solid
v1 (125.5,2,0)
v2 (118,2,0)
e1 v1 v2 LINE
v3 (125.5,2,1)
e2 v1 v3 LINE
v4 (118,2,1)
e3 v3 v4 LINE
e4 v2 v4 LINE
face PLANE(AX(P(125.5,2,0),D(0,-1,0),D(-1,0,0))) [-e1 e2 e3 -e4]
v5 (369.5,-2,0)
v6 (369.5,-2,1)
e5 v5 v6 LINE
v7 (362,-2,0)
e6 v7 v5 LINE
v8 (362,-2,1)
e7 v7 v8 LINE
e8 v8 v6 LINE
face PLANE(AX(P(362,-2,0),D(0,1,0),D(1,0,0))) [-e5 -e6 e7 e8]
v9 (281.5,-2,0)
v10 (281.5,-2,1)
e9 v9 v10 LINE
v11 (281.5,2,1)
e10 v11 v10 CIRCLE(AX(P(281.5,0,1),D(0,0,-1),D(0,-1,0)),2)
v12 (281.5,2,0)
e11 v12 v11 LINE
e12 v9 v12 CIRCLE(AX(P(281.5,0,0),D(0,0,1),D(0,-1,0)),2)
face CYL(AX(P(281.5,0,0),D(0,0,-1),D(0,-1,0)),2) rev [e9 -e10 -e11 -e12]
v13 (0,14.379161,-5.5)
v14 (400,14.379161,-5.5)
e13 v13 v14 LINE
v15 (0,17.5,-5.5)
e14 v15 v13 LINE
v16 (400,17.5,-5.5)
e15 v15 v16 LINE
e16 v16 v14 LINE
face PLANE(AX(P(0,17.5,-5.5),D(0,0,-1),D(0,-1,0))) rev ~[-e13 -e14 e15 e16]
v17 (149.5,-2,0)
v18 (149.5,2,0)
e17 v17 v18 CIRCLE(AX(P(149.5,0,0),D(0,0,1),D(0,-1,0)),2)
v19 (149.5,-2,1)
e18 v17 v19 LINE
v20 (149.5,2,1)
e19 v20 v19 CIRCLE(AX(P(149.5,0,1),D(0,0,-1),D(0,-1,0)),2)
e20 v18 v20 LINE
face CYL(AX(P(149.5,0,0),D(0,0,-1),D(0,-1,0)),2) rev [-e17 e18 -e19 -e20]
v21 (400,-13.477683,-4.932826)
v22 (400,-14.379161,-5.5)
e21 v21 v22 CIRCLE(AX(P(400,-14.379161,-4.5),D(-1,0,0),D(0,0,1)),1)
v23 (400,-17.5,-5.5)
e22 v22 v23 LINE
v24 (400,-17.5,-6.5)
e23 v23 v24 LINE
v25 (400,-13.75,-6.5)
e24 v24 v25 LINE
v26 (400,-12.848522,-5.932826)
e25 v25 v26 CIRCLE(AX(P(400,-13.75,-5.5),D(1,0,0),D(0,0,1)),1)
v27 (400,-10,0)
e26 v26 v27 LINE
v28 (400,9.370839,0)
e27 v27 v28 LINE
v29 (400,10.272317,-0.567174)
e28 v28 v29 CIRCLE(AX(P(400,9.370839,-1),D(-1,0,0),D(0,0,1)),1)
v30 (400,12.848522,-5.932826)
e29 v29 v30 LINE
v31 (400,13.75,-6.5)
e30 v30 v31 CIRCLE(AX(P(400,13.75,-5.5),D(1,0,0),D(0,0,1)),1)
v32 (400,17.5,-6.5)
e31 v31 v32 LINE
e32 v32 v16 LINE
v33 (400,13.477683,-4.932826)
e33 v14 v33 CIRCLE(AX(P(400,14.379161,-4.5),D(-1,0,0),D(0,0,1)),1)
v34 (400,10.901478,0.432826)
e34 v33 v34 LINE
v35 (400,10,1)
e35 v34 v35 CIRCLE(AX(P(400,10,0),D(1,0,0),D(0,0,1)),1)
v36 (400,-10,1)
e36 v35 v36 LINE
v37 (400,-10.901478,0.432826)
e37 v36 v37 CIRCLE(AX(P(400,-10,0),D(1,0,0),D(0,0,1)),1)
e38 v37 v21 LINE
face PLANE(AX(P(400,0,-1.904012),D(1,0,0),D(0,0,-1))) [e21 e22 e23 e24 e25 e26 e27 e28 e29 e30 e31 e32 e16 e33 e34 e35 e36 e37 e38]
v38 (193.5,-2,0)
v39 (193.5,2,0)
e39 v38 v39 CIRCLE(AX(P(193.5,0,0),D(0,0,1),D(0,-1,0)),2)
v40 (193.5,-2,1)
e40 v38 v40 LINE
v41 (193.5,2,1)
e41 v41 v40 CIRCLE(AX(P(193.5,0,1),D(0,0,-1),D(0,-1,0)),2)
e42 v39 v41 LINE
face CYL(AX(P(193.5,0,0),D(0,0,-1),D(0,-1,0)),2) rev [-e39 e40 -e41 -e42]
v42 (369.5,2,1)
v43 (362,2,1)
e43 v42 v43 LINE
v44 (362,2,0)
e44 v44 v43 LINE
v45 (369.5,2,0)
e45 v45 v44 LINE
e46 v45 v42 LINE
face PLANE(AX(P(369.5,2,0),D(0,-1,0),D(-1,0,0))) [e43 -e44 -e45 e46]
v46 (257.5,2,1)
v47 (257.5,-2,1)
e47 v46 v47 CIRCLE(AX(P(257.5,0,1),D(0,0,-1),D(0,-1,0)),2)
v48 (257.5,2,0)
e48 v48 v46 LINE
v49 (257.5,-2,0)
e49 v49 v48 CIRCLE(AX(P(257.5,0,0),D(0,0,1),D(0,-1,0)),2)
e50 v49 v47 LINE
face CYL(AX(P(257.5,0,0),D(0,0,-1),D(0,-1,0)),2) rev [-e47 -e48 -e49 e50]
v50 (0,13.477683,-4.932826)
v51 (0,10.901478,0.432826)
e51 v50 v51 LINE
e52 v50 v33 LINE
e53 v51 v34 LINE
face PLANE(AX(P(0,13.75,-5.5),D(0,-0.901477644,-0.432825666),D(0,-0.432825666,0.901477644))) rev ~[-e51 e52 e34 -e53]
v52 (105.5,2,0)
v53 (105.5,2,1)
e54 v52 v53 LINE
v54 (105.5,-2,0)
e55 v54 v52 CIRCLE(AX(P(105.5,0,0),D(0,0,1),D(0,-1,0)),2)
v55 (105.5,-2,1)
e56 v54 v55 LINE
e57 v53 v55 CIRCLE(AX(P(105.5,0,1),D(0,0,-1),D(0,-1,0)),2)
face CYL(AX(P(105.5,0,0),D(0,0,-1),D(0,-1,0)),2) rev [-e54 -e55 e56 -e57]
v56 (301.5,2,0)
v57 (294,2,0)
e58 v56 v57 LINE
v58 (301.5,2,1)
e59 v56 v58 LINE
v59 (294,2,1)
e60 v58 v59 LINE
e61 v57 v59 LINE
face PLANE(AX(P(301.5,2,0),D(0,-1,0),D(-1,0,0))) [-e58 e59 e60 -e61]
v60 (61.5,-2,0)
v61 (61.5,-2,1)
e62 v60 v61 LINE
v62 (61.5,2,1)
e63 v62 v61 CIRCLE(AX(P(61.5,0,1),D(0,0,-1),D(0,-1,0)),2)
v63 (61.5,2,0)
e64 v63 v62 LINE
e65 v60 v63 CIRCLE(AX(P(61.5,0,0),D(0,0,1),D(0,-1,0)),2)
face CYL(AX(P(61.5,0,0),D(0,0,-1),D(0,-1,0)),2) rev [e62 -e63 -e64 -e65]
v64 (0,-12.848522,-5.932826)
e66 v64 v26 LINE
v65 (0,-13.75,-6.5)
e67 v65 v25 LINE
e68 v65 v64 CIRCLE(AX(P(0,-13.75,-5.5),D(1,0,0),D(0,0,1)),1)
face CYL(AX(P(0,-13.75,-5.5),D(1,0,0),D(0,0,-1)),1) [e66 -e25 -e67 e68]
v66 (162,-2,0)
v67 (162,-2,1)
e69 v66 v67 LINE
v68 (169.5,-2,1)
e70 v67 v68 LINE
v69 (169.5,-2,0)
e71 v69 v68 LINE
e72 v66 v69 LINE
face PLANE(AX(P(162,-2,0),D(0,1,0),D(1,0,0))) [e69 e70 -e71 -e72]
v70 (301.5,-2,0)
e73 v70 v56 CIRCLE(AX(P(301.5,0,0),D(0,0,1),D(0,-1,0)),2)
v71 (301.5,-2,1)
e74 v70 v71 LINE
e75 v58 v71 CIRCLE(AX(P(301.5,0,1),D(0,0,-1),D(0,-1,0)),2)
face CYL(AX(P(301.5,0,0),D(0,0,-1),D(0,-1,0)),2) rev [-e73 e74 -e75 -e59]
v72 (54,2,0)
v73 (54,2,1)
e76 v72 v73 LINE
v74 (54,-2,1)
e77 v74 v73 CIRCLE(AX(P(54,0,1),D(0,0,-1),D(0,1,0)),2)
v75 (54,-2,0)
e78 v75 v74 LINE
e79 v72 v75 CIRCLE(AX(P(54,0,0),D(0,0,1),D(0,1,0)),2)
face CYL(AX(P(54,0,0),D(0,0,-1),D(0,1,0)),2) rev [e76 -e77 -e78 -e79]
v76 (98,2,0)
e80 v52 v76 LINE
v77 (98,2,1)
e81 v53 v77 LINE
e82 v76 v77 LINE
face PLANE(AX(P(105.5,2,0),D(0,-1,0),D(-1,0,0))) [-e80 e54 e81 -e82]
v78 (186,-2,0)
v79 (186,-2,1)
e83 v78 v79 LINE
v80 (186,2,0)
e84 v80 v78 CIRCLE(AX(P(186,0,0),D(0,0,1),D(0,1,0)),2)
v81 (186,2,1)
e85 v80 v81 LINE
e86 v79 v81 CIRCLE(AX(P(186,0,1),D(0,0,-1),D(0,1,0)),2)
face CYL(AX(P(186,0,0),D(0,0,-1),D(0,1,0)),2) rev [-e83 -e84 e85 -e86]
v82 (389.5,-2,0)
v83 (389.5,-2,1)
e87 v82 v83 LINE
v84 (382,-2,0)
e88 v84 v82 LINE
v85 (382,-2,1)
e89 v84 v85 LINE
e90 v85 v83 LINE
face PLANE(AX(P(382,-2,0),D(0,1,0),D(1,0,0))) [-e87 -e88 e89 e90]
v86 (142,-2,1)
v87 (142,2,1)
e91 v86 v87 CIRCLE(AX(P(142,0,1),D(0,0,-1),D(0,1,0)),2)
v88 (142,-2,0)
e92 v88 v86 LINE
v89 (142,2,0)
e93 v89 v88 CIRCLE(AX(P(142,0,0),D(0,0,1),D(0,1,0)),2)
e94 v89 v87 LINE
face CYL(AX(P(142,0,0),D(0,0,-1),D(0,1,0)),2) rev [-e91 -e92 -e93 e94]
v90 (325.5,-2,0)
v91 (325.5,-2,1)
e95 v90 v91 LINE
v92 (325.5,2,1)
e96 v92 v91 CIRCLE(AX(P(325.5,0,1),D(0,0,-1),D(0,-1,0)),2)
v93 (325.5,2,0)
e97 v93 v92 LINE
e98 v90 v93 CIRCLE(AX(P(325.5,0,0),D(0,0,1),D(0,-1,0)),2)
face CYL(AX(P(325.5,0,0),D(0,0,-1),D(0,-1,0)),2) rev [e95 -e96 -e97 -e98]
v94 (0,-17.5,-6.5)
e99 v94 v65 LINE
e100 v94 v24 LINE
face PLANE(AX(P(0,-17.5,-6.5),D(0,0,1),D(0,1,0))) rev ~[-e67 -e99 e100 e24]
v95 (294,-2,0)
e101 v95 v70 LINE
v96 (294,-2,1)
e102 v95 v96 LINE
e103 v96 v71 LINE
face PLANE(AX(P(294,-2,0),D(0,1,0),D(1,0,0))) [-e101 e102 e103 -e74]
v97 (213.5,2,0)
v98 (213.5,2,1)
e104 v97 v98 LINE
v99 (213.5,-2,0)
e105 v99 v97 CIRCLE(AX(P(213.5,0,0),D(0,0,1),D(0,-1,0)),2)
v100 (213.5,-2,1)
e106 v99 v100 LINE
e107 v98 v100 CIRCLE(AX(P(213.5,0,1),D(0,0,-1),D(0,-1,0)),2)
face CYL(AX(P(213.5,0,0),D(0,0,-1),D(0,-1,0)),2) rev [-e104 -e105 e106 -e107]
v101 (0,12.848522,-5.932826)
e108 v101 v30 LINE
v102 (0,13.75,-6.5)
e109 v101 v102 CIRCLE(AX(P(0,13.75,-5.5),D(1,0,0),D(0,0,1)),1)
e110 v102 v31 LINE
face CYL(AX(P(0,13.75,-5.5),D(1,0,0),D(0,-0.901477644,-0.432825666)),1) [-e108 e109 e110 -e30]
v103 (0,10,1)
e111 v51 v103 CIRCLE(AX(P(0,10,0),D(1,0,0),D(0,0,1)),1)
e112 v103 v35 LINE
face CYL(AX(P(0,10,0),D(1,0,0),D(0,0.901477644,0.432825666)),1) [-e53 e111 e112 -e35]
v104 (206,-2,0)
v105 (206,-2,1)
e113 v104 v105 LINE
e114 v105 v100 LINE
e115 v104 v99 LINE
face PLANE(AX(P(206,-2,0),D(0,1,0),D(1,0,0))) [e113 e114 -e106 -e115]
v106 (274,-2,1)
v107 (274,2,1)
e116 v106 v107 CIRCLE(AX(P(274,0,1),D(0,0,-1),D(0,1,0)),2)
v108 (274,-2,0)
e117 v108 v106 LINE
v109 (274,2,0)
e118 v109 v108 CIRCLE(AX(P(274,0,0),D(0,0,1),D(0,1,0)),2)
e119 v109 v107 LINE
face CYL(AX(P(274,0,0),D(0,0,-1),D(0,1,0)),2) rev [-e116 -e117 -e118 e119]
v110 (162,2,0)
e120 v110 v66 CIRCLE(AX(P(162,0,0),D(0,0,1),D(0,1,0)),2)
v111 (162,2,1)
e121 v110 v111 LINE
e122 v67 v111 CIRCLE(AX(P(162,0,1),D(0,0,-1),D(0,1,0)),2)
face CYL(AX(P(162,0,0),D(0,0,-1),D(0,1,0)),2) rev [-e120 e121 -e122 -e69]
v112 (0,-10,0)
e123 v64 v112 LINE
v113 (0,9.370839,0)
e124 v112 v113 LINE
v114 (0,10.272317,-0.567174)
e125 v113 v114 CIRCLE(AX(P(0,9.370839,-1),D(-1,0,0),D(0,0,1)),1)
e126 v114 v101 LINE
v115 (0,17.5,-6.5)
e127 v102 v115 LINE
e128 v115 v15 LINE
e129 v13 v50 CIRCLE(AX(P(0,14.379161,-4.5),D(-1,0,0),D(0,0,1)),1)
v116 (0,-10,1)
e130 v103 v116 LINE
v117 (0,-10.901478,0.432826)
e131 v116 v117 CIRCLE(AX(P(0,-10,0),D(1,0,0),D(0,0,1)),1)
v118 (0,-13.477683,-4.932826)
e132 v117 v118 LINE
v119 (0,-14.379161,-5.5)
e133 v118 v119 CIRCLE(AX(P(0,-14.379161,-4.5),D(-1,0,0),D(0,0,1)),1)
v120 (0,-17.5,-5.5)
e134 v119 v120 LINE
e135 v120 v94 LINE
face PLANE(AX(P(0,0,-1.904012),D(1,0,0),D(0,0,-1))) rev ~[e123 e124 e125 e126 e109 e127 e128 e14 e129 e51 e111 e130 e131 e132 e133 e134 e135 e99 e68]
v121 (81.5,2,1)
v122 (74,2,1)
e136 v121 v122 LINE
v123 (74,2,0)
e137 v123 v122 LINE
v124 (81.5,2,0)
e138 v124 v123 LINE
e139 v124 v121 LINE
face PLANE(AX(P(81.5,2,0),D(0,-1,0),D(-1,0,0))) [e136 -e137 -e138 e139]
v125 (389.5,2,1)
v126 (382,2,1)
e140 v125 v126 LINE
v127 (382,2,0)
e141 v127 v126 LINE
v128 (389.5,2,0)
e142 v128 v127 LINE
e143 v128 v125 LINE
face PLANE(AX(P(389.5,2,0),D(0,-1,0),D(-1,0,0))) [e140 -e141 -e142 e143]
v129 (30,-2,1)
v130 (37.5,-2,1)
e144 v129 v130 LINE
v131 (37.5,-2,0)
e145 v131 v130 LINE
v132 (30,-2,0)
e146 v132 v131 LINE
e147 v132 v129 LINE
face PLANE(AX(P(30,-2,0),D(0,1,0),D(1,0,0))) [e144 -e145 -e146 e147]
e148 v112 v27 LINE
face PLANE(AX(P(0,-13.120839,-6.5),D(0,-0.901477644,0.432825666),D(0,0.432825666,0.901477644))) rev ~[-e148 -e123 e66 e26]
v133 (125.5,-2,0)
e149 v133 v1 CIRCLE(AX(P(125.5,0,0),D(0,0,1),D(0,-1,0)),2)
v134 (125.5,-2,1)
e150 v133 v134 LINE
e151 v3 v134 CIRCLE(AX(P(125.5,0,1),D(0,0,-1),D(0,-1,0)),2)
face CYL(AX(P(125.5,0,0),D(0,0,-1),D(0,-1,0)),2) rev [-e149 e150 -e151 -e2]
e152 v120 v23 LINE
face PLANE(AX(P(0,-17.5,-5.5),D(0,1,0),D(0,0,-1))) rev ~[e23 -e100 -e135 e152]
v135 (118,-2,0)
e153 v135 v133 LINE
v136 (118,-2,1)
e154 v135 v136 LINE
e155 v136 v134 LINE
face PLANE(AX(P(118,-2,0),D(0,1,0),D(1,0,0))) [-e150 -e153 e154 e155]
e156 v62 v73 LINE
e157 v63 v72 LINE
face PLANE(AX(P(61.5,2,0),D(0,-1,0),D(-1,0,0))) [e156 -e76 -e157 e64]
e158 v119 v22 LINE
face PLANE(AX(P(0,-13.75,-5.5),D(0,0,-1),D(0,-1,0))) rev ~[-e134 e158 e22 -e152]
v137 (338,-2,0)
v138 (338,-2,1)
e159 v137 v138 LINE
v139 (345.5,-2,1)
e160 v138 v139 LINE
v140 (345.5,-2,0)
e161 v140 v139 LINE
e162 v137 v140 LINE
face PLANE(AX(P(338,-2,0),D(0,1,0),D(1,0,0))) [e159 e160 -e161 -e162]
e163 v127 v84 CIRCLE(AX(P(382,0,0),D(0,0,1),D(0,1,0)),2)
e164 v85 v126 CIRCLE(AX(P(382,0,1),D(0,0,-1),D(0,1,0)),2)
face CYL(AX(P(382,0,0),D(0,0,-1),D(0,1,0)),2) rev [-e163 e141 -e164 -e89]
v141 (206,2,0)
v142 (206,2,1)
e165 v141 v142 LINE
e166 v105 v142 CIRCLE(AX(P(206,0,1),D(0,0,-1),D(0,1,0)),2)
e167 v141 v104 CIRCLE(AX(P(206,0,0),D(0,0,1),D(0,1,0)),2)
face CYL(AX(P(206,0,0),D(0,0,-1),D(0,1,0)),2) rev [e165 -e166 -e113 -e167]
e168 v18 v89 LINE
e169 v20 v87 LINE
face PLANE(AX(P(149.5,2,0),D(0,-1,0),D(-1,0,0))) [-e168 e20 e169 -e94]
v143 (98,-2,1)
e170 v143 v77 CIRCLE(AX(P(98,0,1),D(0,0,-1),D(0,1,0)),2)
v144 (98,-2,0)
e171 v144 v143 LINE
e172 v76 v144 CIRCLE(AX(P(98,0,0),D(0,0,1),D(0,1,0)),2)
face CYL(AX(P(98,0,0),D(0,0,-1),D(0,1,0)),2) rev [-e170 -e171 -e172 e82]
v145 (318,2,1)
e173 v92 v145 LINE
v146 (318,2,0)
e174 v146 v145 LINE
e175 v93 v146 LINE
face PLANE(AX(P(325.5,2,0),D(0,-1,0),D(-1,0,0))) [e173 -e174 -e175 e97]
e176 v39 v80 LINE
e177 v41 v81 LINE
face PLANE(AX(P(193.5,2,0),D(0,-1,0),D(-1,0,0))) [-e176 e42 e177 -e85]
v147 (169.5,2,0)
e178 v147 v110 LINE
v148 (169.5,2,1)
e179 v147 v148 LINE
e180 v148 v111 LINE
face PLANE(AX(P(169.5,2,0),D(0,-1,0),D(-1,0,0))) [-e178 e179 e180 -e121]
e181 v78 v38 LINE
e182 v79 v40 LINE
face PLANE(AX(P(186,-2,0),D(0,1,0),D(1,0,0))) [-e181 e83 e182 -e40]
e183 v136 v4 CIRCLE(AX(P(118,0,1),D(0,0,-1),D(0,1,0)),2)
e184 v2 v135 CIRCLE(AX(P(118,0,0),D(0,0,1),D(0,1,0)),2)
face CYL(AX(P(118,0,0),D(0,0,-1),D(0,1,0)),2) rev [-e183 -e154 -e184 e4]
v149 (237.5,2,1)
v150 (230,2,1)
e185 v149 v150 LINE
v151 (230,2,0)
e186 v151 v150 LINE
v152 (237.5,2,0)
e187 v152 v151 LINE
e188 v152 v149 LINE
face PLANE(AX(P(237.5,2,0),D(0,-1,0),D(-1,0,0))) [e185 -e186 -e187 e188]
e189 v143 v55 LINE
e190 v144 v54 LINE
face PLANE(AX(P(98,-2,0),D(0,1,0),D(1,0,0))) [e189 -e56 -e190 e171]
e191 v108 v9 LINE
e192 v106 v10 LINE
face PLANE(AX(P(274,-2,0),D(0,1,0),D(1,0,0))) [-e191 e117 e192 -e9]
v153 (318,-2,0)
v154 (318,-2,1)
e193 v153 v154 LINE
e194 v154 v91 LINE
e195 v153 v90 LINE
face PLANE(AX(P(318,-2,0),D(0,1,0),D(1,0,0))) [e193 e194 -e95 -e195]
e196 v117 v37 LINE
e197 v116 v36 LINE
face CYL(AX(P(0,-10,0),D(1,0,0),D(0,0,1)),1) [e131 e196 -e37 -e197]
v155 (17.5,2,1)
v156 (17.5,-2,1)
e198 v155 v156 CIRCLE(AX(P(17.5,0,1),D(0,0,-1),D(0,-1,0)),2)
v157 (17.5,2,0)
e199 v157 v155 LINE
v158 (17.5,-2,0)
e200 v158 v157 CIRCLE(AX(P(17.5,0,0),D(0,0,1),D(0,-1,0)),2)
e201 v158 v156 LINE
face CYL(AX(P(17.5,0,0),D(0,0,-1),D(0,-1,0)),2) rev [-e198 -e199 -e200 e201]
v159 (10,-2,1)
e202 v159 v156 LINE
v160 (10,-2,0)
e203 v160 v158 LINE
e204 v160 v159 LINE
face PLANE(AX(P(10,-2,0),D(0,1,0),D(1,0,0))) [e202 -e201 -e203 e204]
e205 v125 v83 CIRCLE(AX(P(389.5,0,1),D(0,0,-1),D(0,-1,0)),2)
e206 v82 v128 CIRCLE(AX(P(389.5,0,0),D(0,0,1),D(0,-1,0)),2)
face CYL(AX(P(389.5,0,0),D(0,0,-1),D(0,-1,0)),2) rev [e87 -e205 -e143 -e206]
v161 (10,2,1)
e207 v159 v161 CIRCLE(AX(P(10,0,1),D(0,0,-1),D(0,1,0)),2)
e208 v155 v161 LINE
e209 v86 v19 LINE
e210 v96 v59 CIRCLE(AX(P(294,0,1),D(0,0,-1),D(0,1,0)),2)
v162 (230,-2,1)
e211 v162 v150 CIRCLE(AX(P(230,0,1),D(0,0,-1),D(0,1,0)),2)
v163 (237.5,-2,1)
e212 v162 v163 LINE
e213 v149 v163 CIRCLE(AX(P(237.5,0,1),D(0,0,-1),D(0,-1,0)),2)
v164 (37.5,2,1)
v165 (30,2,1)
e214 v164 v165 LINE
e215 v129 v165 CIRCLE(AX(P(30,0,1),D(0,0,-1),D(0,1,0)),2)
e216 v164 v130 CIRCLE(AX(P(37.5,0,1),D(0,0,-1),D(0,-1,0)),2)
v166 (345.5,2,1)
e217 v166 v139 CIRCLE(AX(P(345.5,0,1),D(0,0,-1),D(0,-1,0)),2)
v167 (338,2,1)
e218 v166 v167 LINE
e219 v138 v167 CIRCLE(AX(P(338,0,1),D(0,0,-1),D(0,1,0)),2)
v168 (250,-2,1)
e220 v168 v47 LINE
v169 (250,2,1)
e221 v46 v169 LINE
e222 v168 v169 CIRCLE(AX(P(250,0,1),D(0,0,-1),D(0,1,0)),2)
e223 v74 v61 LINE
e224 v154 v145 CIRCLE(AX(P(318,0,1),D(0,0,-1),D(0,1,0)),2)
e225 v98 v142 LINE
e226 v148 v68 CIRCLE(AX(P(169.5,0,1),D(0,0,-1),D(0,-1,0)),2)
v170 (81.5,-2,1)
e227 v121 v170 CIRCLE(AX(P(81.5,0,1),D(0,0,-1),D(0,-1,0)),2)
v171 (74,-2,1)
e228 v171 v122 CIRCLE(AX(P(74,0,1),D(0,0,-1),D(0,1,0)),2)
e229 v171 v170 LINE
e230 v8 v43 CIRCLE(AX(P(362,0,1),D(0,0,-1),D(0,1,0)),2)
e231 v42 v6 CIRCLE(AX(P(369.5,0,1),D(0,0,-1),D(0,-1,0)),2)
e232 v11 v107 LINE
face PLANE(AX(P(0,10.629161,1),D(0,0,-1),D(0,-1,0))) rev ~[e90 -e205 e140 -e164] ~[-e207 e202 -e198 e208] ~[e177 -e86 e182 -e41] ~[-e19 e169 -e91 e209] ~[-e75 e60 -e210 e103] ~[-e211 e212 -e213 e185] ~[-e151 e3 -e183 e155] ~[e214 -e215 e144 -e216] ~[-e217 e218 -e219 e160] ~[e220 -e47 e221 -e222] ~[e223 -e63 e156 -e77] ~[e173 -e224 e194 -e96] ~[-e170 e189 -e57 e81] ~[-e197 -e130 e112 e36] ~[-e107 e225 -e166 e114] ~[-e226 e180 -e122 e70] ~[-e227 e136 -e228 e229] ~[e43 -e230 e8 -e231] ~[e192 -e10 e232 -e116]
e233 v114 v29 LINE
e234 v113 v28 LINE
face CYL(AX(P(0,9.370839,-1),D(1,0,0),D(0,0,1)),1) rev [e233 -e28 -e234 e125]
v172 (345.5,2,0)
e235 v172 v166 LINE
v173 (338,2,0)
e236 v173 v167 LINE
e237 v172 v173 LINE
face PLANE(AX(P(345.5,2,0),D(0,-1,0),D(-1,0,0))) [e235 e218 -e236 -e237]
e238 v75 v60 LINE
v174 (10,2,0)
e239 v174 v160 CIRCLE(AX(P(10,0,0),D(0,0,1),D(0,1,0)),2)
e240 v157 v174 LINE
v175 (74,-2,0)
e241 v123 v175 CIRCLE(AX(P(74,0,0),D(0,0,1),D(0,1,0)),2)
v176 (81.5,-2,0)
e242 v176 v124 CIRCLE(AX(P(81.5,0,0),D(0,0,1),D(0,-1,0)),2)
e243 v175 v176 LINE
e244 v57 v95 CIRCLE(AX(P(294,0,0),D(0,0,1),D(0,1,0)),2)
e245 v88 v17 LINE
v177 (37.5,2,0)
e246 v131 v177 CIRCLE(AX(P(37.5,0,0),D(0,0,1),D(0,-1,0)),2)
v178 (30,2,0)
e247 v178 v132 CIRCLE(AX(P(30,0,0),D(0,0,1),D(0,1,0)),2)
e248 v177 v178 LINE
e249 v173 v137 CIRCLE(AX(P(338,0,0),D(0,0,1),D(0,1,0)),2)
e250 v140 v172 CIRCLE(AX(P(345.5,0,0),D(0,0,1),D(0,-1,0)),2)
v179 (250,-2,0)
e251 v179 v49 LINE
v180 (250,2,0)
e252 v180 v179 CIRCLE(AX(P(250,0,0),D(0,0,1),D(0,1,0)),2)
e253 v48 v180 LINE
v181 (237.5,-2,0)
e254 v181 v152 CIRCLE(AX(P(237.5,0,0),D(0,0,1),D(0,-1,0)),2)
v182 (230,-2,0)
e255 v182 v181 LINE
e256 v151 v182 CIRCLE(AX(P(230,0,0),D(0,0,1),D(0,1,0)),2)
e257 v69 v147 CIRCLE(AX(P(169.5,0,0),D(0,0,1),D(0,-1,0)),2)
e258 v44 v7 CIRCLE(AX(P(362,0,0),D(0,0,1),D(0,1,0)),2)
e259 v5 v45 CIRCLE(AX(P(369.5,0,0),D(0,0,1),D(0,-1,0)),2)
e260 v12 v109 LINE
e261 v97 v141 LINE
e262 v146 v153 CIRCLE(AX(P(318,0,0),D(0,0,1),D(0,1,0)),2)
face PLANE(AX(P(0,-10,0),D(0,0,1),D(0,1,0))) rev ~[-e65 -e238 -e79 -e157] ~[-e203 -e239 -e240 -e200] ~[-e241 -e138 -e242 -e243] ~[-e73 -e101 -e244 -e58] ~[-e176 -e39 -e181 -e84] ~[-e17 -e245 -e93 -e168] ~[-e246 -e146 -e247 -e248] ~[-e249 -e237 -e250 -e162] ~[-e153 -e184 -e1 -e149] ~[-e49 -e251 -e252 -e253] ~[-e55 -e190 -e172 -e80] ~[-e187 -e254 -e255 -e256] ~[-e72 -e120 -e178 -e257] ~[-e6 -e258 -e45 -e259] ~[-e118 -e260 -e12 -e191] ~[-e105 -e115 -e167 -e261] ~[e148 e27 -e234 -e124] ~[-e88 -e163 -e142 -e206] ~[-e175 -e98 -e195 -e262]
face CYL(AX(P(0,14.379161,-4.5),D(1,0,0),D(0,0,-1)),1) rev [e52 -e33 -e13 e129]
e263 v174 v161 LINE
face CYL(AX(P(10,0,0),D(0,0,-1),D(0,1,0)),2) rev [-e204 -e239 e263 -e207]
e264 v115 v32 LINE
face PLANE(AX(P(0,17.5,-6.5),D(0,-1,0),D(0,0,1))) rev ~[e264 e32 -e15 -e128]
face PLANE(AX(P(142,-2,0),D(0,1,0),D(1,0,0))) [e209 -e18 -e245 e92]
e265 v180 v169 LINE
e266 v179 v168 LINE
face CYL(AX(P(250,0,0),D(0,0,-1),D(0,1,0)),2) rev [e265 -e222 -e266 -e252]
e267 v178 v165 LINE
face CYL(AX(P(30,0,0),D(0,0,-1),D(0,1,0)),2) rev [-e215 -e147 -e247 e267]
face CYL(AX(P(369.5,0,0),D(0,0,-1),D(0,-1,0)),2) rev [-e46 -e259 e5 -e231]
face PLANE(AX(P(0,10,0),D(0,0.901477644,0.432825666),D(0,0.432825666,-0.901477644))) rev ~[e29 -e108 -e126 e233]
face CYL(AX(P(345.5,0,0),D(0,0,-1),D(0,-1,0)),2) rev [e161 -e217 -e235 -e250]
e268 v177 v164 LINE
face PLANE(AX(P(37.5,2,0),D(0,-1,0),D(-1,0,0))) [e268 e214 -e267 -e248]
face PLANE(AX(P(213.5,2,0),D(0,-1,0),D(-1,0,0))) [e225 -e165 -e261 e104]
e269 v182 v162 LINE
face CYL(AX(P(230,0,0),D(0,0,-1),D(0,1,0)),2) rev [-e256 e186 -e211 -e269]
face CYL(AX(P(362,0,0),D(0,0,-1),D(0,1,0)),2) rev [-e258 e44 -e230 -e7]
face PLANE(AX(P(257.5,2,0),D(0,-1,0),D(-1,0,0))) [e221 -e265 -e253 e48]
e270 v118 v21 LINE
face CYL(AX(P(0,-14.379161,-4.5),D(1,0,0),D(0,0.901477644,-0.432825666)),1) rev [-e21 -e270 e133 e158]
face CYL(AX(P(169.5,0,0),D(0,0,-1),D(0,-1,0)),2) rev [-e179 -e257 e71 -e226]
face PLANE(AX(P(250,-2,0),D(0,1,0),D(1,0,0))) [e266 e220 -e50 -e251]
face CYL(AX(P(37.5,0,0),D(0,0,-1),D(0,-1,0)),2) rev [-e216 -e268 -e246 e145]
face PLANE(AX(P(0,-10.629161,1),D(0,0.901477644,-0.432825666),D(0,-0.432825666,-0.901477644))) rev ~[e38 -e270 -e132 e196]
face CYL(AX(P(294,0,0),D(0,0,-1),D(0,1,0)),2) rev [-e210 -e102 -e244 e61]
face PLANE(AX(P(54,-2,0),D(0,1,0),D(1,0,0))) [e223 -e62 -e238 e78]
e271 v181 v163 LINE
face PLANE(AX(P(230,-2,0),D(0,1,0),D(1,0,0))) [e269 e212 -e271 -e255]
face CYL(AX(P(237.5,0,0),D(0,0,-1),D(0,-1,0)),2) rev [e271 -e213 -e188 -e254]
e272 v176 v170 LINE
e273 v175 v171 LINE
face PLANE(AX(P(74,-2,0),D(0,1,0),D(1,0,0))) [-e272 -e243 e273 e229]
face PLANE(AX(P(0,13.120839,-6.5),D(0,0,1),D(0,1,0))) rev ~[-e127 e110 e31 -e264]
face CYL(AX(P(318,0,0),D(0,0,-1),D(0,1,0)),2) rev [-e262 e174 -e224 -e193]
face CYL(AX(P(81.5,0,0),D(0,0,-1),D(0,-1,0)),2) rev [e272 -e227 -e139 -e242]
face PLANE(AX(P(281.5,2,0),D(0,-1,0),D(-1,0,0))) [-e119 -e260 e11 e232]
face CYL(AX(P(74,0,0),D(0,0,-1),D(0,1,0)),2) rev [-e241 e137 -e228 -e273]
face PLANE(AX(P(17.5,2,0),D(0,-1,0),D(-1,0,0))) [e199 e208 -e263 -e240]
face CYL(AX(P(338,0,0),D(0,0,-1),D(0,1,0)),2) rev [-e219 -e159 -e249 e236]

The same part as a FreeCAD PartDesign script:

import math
import FreeCAD as App
import Part
import Sketcher
Q = App.Units.Quantity


def edges_at(feature, points):
    """Names of the edges that pass closest to the given points."""
    edges = feature.Shape.Edges
    near = lambda p: min(range(len(edges)), key=lambda i: edges[i].distToShape(Part.Vertex(*p))[0])
    return sorted({f"Edge{near(p) + 1}" for p in points})


def add_polygon(sketch, points):
    """Adds a closed chain of lines whose ends are joined by coincident constraints."""
    first, n = sketch.GeometryCount, len(points)
    for a, b in zip(points, points[1:] + points[:1]):
        sketch.addGeometry(Part.LineSegment(App.Vector(*a, 0), App.Vector(*b, 0)), False)
    for i in range(n):
        sketch.addConstraint(Sketcher.Constraint("Coincident", first + i, 2, first + (i + 1) % n, 1))

doc = App.newDocument("Part")
body = doc.addObject("PartDesign::Body", "Body")

# Sketch on YZ plane
sketch1 = body.newObject("Sketcher::SketchObject", "Sketch")
sketch1.AttachmentSupport = (doc.getObject("YZ_Plane"), [""])
sketch1.MapMode = "FlatFace"
add_polygon(sketch1, [(-10, 0), (10, 0), (13.1, -6.5), (17.5, -6.5), (17.5, -5.5), (13.8, -5.5), (10.6, 1), (-10.6, 1), (-13.8, -5.5), (-17.5, -5.5), (-17.5, -6.5), (-13.1, -6.5)])  # lines 0-11
sketch1.addConstraint(Sketcher.Constraint("Horizontal", 0))
sketch1.addConstraint(Sketcher.Constraint("Horizontal", 2))
sketch1.addConstraint(Sketcher.Constraint("Vertical", 3))
sketch1.addConstraint(Sketcher.Constraint("Horizontal", 4))
sketch1.addConstraint(Sketcher.Constraint("Horizontal", 6))
sketch1.addConstraint(Sketcher.Constraint("Horizontal", 8))
sketch1.addConstraint(Sketcher.Constraint("Vertical", 9))
sketch1.addConstraint(Sketcher.Constraint("Horizontal", 10))
sketch1.addConstraint(Sketcher.Constraint("Symmetric", 0, 2, 11, 2, -1, 1))
sketch1.addConstraint(Sketcher.Constraint("Symmetric", 4, 2, 7, 2, -2))
sketch1.addConstraint(Sketcher.Constraint("Symmetric", 2, 2, 9, 2, -2))
sketch1.addConstraint(Sketcher.Constraint("Parallel", 1, 5))
sketch1.addConstraint(Sketcher.Constraint("Parallel", 7, 11))
sketch1.addConstraint(Sketcher.Constraint("Equal", 2, 10))
sketch1.addConstraint(Sketcher.Constraint("Equal", 1, 5))
sketch1.addConstraint(Sketcher.Constraint("DistanceX", 0, 1, 0, 2, Q("20 mm")))
sketch1.addConstraint(Sketcher.Constraint("DistanceY", 3, 1, 3, 2, Q("1 mm")))
sketch1.addConstraint(Sketcher.Constraint("DistanceX", 4, 2, 4, 1, Q("3.75 mm")))
sketch1.addConstraint(Sketcher.Constraint("DistanceY", 1, 2, -1, 1, Q("6.5 mm")))
sketch1.addConstraint(Sketcher.Constraint("DistanceX", -1, 1, 2, 2, Q("17.5 mm")))
sketch1.addConstraint(Sketcher.Constraint("DistanceX", 2, 1, 2, 2, Q("4.379161 mm")))
pad1 = body.newObject("PartDesign::Pad", "Pad")
pad1.Profile = sketch1
pad1.Length = 400
doc.recompute()

fillet = body.newObject("PartDesign::Fillet", "Fillet")
fillet.Base = (pad1, edges_at(pad1, [
    (200, 10, 0),
    (200, -13.121, -6.5),
    (200, -13.75, -5.5),
    (200, -10.629, 1),
    (200, 10.629, 1),
    (200, 13.75, -5.5),
    (200, 13.121, -6.5),
]))
fillet.Radius = 1

# Sketch on XY plane
sketch2 = body.newObject("Sketcher::SketchObject", "Sketch001")
sketch2.AttachmentSupport = (doc.getObject("XY_Plane"), [""])
sketch2.MapMode = "FlatFace"
sketch2.addGeometry(Part.LineSegment(App.Vector(17.5, -2, 0), App.Vector(10, -2, 0)), False)
sketch2.addGeometry(Part.ArcOfCircle(Part.Circle(App.Vector(10, 0, 0), App.Vector(0, 0, 1), 2), math.radians(90), math.radians(270)), False)
sketch2.addGeometry(Part.LineSegment(App.Vector(10, 2, 0), App.Vector(17.5, 2, 0)), False)
sketch2.addGeometry(Part.ArcOfCircle(Part.Circle(App.Vector(17.5, 0, 0), App.Vector(0, 0, 1), 2), math.radians(-90), math.radians(90)), False)
sketch2.addGeometry(Part.LineSegment(App.Vector(37.5, -2, 0), App.Vector(30, -2, 0)), False)
sketch2.addGeometry(Part.ArcOfCircle(Part.Circle(App.Vector(30, 0, 0), App.Vector(0, 0, 1), 2), math.radians(90), math.radians(270)), False)
sketch2.addGeometry(Part.LineSegment(App.Vector(30, 2, 0), App.Vector(37.5, 2, 0)), False)
sketch2.addGeometry(Part.ArcOfCircle(Part.Circle(App.Vector(37.5, 0, 0), App.Vector(0, 0, 1), 2), math.radians(-90), math.radians(90)), False)
sketch2.addGeometry(Part.LineSegment(App.Vector(61.5, -2, 0), App.Vector(54, -2, 0)), False)
sketch2.addGeometry(Part.ArcOfCircle(Part.Circle(App.Vector(54, 0, 0), App.Vector(0, 0, 1), 2), math.radians(90), math.radians(270)), False)
sketch2.addGeometry(Part.LineSegment(App.Vector(54, 2, 0), App.Vector(61.5, 2, 0)), False)
sketch2.addGeometry(Part.ArcOfCircle(Part.Circle(App.Vector(61.5, 0, 0), App.Vector(0, 0, 1), 2), math.radians(-90), math.radians(90)), False)
sketch2.addGeometry(Part.LineSegment(App.Vector(81.5, -2, 0), App.Vector(74, -2, 0)), False)
sketch2.addGeometry(Part.ArcOfCircle(Part.Circle(App.Vector(74, 0, 0), App.Vector(0, 0, 1), 2), math.radians(90), math.radians(270)), False)
sketch2.addGeometry(Part.LineSegment(App.Vector(74, 2, 0), App.Vector(81.5, 2, 0)), False)
sketch2.addGeometry(Part.ArcOfCircle(Part.Circle(App.Vector(81.5, 0, 0), App.Vector(0, 0, 1), 2), math.radians(-90), math.radians(90)), False)
sketch2.addGeometry(Part.LineSegment(App.Vector(105.5, -2, 0), App.Vector(98, -2, 0)), False)
sketch2.addGeometry(Part.ArcOfCircle(Part.Circle(App.Vector(98, 0, 0), App.Vector(0, 0, 1), 2), math.radians(90), math.radians(270)), False)
sketch2.addGeometry(Part.LineSegment(App.Vector(98, 2, 0), App.Vector(105.5, 2, 0)), False)
sketch2.addGeometry(Part.ArcOfCircle(Part.Circle(App.Vector(105.5, 0, 0), App.Vector(0, 0, 1), 2), math.radians(-90), math.radians(90)), False)
sketch2.addGeometry(Part.LineSegment(App.Vector(125.5, -2, 0), App.Vector(118, -2, 0)), False)
sketch2.addGeometry(Part.ArcOfCircle(Part.Circle(App.Vector(118, 0, 0), App.Vector(0, 0, 1), 2), math.radians(90), math.radians(270)), False)
sketch2.addGeometry(Part.LineSegment(App.Vector(118, 2, 0), App.Vector(125.5, 2, 0)), False)
sketch2.addGeometry(Part.ArcOfCircle(Part.Circle(App.Vector(125.5, 0, 0), App.Vector(0, 0, 1), 2), math.radians(-90), math.radians(90)), False)
sketch2.addGeometry(Part.LineSegment(App.Vector(149.5, -2, 0), App.Vector(142, -2, 0)), False)
sketch2.addGeometry(Part.ArcOfCircle(Part.Circle(App.Vector(142, 0, 0), App.Vector(0, 0, 1), 2), math.radians(90), math.radians(270)), False)
sketch2.addGeometry(Part.LineSegment(App.Vector(142, 2, 0), App.Vector(149.5, 2, 0)), False)
sketch2.addGeometry(Part.ArcOfCircle(Part.Circle(App.Vector(149.5, 0, 0), App.Vector(0, 0, 1), 2), math.radians(-90), math.radians(90)), False)
sketch2.addGeometry(Part.LineSegment(App.Vector(169.5, -2, 0), App.Vector(162, -2, 0)), False)
sketch2.addGeometry(Part.ArcOfCircle(Part.Circle(App.Vector(162, 0, 0), App.Vector(0, 0, 1), 2), math.radians(90), math.radians(270)), False)
sketch2.addGeometry(Part.LineSegment(App.Vector(162, 2, 0), App.Vector(169.5, 2, 0)), False)
sketch2.addGeometry(Part.ArcOfCircle(Part.Circle(App.Vector(169.5, 0, 0), App.Vector(0, 0, 1), 2), math.radians(-90), math.radians(90)), False)
sketch2.addGeometry(Part.LineSegment(App.Vector(193.5, -2, 0), App.Vector(186, -2, 0)), False)
sketch2.addGeometry(Part.ArcOfCircle(Part.Circle(App.Vector(186, 0, 0), App.Vector(0, 0, 1), 2), math.radians(90), math.radians(270)), False)
sketch2.addGeometry(Part.LineSegment(App.Vector(186, 2, 0), App.Vector(193.5, 2, 0)), False)
sketch2.addGeometry(Part.ArcOfCircle(Part.Circle(App.Vector(193.5, 0, 0), App.Vector(0, 0, 1), 2), math.radians(-90), math.radians(90)), False)
sketch2.addGeometry(Part.LineSegment(App.Vector(213.5, -2, 0), App.Vector(206, -2, 0)), False)
sketch2.addGeometry(Part.ArcOfCircle(Part.Circle(App.Vector(206, 0, 0), App.Vector(0, 0, 1), 2), math.radians(90), math.radians(270)), False)
sketch2.addGeometry(Part.LineSegment(App.Vector(206, 2, 0), App.Vector(213.5, 2, 0)), False)
sketch2.addGeometry(Part.ArcOfCircle(Part.Circle(App.Vector(213.5, 0, 0), App.Vector(0, 0, 1), 2), math.radians(-90), math.radians(90)), False)
sketch2.addGeometry(Part.LineSegment(App.Vector(237.5, -2, 0), App.Vector(230, -2, 0)), False)
sketch2.addGeometry(Part.ArcOfCircle(Part.Circle(App.Vector(230, 0, 0), App.Vector(0, 0, 1), 2), math.radians(90), math.radians(270)), False)
sketch2.addGeometry(Part.LineSegment(App.Vector(230, 2, 0), App.Vector(237.5, 2, 0)), False)
sketch2.addGeometry(Part.ArcOfCircle(Part.Circle(App.Vector(237.5, 0, 0), App.Vector(0, 0, 1), 2), math.radians(-90), math.radians(90)), False)
sketch2.addGeometry(Part.LineSegment(App.Vector(257.5, -2, 0), App.Vector(250, -2, 0)), False)
sketch2.addGeometry(Part.ArcOfCircle(Part.Circle(App.Vector(250, 0, 0), App.Vector(0, 0, 1), 2), math.radians(90), math.radians(270)), False)
sketch2.addGeometry(Part.LineSegment(App.Vector(250, 2, 0), App.Vector(257.5, 2, 0)), False)
sketch2.addGeometry(Part.ArcOfCircle(Part.Circle(App.Vector(257.5, 0, 0), App.Vector(0, 0, 1), 2), math.radians(-90), math.radians(90)), False)
sketch2.addGeometry(Part.LineSegment(App.Vector(281.5, -2, 0), App.Vector(274, -2, 0)), False)
sketch2.addGeometry(Part.ArcOfCircle(Part.Circle(App.Vector(274, 0, 0), App.Vector(0, 0, 1), 2), math.radians(90), math.radians(270)), False)
sketch2.addGeometry(Part.LineSegment(App.Vector(274, 2, 0), App.Vector(281.5, 2, 0)), False)
sketch2.addGeometry(Part.ArcOfCircle(Part.Circle(App.Vector(281.5, 0, 0), App.Vector(0, 0, 1), 2), math.radians(-90), math.radians(90)), False)
sketch2.addGeometry(Part.LineSegment(App.Vector(301.5, -2, 0), App.Vector(294, -2, 0)), False)
sketch2.addGeometry(Part.ArcOfCircle(Part.Circle(App.Vector(294, 0, 0), App.Vector(0, 0, 1), 2), math.radians(90), math.radians(270)), False)
sketch2.addGeometry(Part.LineSegment(App.Vector(294, 2, 0), App.Vector(301.5, 2, 0)), False)
sketch2.addGeometry(Part.ArcOfCircle(Part.Circle(App.Vector(301.5, 0, 0), App.Vector(0, 0, 1), 2), math.radians(-90), math.radians(90)), False)
sketch2.addGeometry(Part.LineSegment(App.Vector(325.5, -2, 0), App.Vector(318, -2, 0)), False)
sketch2.addGeometry(Part.ArcOfCircle(Part.Circle(App.Vector(318, 0, 0), App.Vector(0, 0, 1), 2), math.radians(90), math.radians(270)), False)
sketch2.addGeometry(Part.LineSegment(App.Vector(318, 2, 0), App.Vector(325.5, 2, 0)), False)
sketch2.addGeometry(Part.ArcOfCircle(Part.Circle(App.Vector(325.5, 0, 0), App.Vector(0, 0, 1), 2), math.radians(-90), math.radians(90)), False)
sketch2.addGeometry(Part.LineSegment(App.Vector(345.5, -2, 0), App.Vector(338, -2, 0)), False)
sketch2.addGeometry(Part.ArcOfCircle(Part.Circle(App.Vector(338, 0, 0), App.Vector(0, 0, 1), 2), math.radians(90), math.radians(270)), False)
sketch2.addGeometry(Part.LineSegment(App.Vector(338, 2, 0), App.Vector(345.5, 2, 0)), False)
sketch2.addGeometry(Part.ArcOfCircle(Part.Circle(App.Vector(345.5, 0, 0), App.Vector(0, 0, 1), 2), math.radians(-90), math.radians(90)), False)
sketch2.addGeometry(Part.LineSegment(App.Vector(369.5, -2, 0), App.Vector(362, -2, 0)), False)
sketch2.addGeometry(Part.ArcOfCircle(Part.Circle(App.Vector(362, 0, 0), App.Vector(0, 0, 1), 2), math.radians(90), math.radians(270)), False)
sketch2.addGeometry(Part.LineSegment(App.Vector(362, 2, 0), App.Vector(369.5, 2, 0)), False)
sketch2.addGeometry(Part.ArcOfCircle(Part.Circle(App.Vector(369.5, 0, 0), App.Vector(0, 0, 1), 2), math.radians(-90), math.radians(90)), False)
sketch2.addGeometry(Part.LineSegment(App.Vector(389.5, -2, 0), App.Vector(382, -2, 0)), False)
sketch2.addGeometry(Part.ArcOfCircle(Part.Circle(App.Vector(382, 0, 0), App.Vector(0, 0, 1), 2), math.radians(90), math.radians(270)), False)
sketch2.addGeometry(Part.LineSegment(App.Vector(382, 2, 0), App.Vector(389.5, 2, 0)), False)
sketch2.addGeometry(Part.ArcOfCircle(Part.Circle(App.Vector(389.5, 0, 0), App.Vector(0, 0, 1), 2), math.radians(-90), math.radians(90)), False)
sketch2.addConstraint(Sketcher.Constraint("Tangent", 0, 2, 1, 2))
sketch2.addConstraint(Sketcher.Constraint("Tangent", 1, 1, 2, 1))
sketch2.addConstraint(Sketcher.Constraint("Tangent", 2, 2, 3, 2))
sketch2.addConstraint(Sketcher.Constraint("Tangent", 3, 1, 0, 1))
sketch2.addConstraint(Sketcher.Constraint("Tangent", 4, 2, 5, 2))
sketch2.addConstraint(Sketcher.Constraint("Tangent", 5, 1, 6, 1))
sketch2.addConstraint(Sketcher.Constraint("Tangent", 6, 2, 7, 2))
sketch2.addConstraint(Sketcher.Constraint("Tangent", 7, 1, 4, 1))
sketch2.addConstraint(Sketcher.Constraint("Tangent", 8, 2, 9, 2))
sketch2.addConstraint(Sketcher.Constraint("Tangent", 9, 1, 10, 1))
sketch2.addConstraint(Sketcher.Constraint("Tangent", 10, 2, 11, 2))
sketch2.addConstraint(Sketcher.Constraint("Tangent", 11, 1, 8, 1))
sketch2.addConstraint(Sketcher.Constraint("Tangent", 12, 2, 13, 2))
sketch2.addConstraint(Sketcher.Constraint("Tangent", 13, 1, 14, 1))
sketch2.addConstraint(Sketcher.Constraint("Tangent", 14, 2, 15, 2))
sketch2.addConstraint(Sketcher.Constraint("Tangent", 15, 1, 12, 1))
sketch2.addConstraint(Sketcher.Constraint("Tangent", 16, 2, 17, 2))
sketch2.addConstraint(Sketcher.Constraint("Tangent", 17, 1, 18, 1))
sketch2.addConstraint(Sketcher.Constraint("Tangent", 18, 2, 19, 2))
sketch2.addConstraint(Sketcher.Constraint("Tangent", 19, 1, 16, 1))
sketch2.addConstraint(Sketcher.Constraint("Tangent", 20, 2, 21, 2))
sketch2.addConstraint(Sketcher.Constraint("Tangent", 21, 1, 22, 1))
sketch2.addConstraint(Sketcher.Constraint("Tangent", 22, 2, 23, 2))
sketch2.addConstraint(Sketcher.Constraint("Tangent", 23, 1, 20, 1))
sketch2.addConstraint(Sketcher.Constraint("Tangent", 24, 2, 25, 2))
sketch2.addConstraint(Sketcher.Constraint("Tangent", 25, 1, 26, 1))
sketch2.addConstraint(Sketcher.Constraint("Tangent", 26, 2, 27, 2))
sketch2.addConstraint(Sketcher.Constraint("Tangent", 27, 1, 24, 1))
sketch2.addConstraint(Sketcher.Constraint("Tangent", 28, 2, 29, 2))
sketch2.addConstraint(Sketcher.Constraint("Tangent", 29, 1, 30, 1))
sketch2.addConstraint(Sketcher.Constraint("Tangent", 30, 2, 31, 2))
sketch2.addConstraint(Sketcher.Constraint("Tangent", 31, 1, 28, 1))
sketch2.addConstraint(Sketcher.Constraint("Tangent", 32, 2, 33, 2))
sketch2.addConstraint(Sketcher.Constraint("Tangent", 33, 1, 34, 1))
sketch2.addConstraint(Sketcher.Constraint("Tangent", 34, 2, 35, 2))
sketch2.addConstraint(Sketcher.Constraint("Tangent", 35, 1, 32, 1))
sketch2.addConstraint(Sketcher.Constraint("Tangent", 36, 2, 37, 2))
sketch2.addConstraint(Sketcher.Constraint("Tangent", 37, 1, 38, 1))
sketch2.addConstraint(Sketcher.Constraint("Tangent", 38, 2, 39, 2))
sketch2.addConstraint(Sketcher.Constraint("Tangent", 39, 1, 36, 1))
sketch2.addConstraint(Sketcher.Constraint("Tangent", 40, 2, 41, 2))
sketch2.addConstraint(Sketcher.Constraint("Tangent", 41, 1, 42, 1))
sketch2.addConstraint(Sketcher.Constraint("Tangent", 42, 2, 43, 2))
sketch2.addConstraint(Sketcher.Constraint("Tangent", 43, 1, 40, 1))
sketch2.addConstraint(Sketcher.Constraint("Tangent", 44, 2, 45, 2))
sketch2.addConstraint(Sketcher.Constraint("Tangent", 45, 1, 46, 1))
sketch2.addConstraint(Sketcher.Constraint("Tangent", 46, 2, 47, 2))
sketch2.addConstraint(Sketcher.Constraint("Tangent", 47, 1, 44, 1))
sketch2.addConstraint(Sketcher.Constraint("Tangent", 48, 2, 49, 2))
sketch2.addConstraint(Sketcher.Constraint("Tangent", 49, 1, 50, 1))
sketch2.addConstraint(Sketcher.Constraint("Tangent", 50, 2, 51, 2))
sketch2.addConstraint(Sketcher.Constraint("Tangent", 51, 1, 48, 1))
sketch2.addConstraint(Sketcher.Constraint("Tangent", 52, 2, 53, 2))
sketch2.addConstraint(Sketcher.Constraint("Tangent", 53, 1, 54, 1))
sketch2.addConstraint(Sketcher.Constraint("Tangent", 54, 2, 55, 2))
sketch2.addConstraint(Sketcher.Constraint("Tangent", 55, 1, 52, 1))
sketch2.addConstraint(Sketcher.Constraint("Tangent", 56, 2, 57, 2))
sketch2.addConstraint(Sketcher.Constraint("Tangent", 57, 1, 58, 1))
sketch2.addConstraint(Sketcher.Constraint("Tangent", 58, 2, 59, 2))
sketch2.addConstraint(Sketcher.Constraint("Tangent", 59, 1, 56, 1))
sketch2.addConstraint(Sketcher.Constraint("Tangent", 60, 2, 61, 2))
sketch2.addConstraint(Sketcher.Constraint("Tangent", 61, 1, 62, 1))
sketch2.addConstraint(Sketcher.Constraint("Tangent", 62, 2, 63, 2))
sketch2.addConstraint(Sketcher.Constraint("Tangent", 63, 1, 60, 1))
sketch2.addConstraint(Sketcher.Constraint("Tangent", 64, 2, 65, 2))
sketch2.addConstraint(Sketcher.Constraint("Tangent", 65, 1, 66, 1))
sketch2.addConstraint(Sketcher.Constraint("Tangent", 66, 2, 67, 2))
sketch2.addConstraint(Sketcher.Constraint("Tangent", 67, 1, 64, 1))
sketch2.addConstraint(Sketcher.Constraint("Tangent", 68, 2, 69, 2))
sketch2.addConstraint(Sketcher.Constraint("Tangent", 69, 1, 70, 1))
sketch2.addConstraint(Sketcher.Constraint("Tangent", 70, 2, 71, 2))
sketch2.addConstraint(Sketcher.Constraint("Tangent", 71, 1, 68, 1))
sketch2.addConstraint(Sketcher.Constraint("Horizontal", 0))
sketch2.addConstraint(Sketcher.Constraint("Horizontal", 2))
sketch2.addConstraint(Sketcher.Constraint("Horizontal", 4))
sketch2.addConstraint(Sketcher.Constraint("Horizontal", 6))
sketch2.addConstraint(Sketcher.Constraint("Horizontal", 8))
sketch2.addConstraint(Sketcher.Constraint("Horizontal", 10))
sketch2.addConstraint(Sketcher.Constraint("Horizontal", 12))
sketch2.addConstraint(Sketcher.Constraint("Horizontal", 14))
sketch2.addConstraint(Sketcher.Constraint("Horizontal", 16))
sketch2.addConstraint(Sketcher.Constraint("Horizontal", 18))
sketch2.addConstraint(Sketcher.Constraint("Horizontal", 20))
sketch2.addConstraint(Sketcher.Constraint("Horizontal", 22))
sketch2.addConstraint(Sketcher.Constraint("Horizontal", 24))
sketch2.addConstraint(Sketcher.Constraint("Horizontal", 26))
sketch2.addConstraint(Sketcher.Constraint("Horizontal", 28))
sketch2.addConstraint(Sketcher.Constraint("Horizontal", 30))
sketch2.addConstraint(Sketcher.Constraint("Horizontal", 32))
sketch2.addConstraint(Sketcher.Constraint("Horizontal", 34))
sketch2.addConstraint(Sketcher.Constraint("Horizontal", 36))
sketch2.addConstraint(Sketcher.Constraint("Horizontal", 38))
sketch2.addConstraint(Sketcher.Constraint("Horizontal", 40))
sketch2.addConstraint(Sketcher.Constraint("Horizontal", 42))
sketch2.addConstraint(Sketcher.Constraint("Horizontal", 44))
sketch2.addConstraint(Sketcher.Constraint("Horizontal", 46))
sketch2.addConstraint(Sketcher.Constraint("Horizontal", 48))
sketch2.addConstraint(Sketcher.Constraint("Horizontal", 50))
sketch2.addConstraint(Sketcher.Constraint("Horizontal", 52))
sketch2.addConstraint(Sketcher.Constraint("Horizontal", 54))
sketch2.addConstraint(Sketcher.Constraint("Horizontal", 56))
sketch2.addConstraint(Sketcher.Constraint("Horizontal", 58))
sketch2.addConstraint(Sketcher.Constraint("Horizontal", 60))
sketch2.addConstraint(Sketcher.Constraint("Horizontal", 62))
sketch2.addConstraint(Sketcher.Constraint("Horizontal", 64))
sketch2.addConstraint(Sketcher.Constraint("Horizontal", 66))
sketch2.addConstraint(Sketcher.Constraint("Horizontal", 68))
sketch2.addConstraint(Sketcher.Constraint("Horizontal", 70))
sketch2.addConstraint(Sketcher.Constraint("Equal", 3, 5))
sketch2.addConstraint(Sketcher.Constraint("Equal", 7, 9))
sketch2.addConstraint(Sketcher.Constraint("Equal", 11, 13))
sketch2.addConstraint(Sketcher.Constraint("Equal", 15, 17))
sketch2.addConstraint(Sketcher.Constraint("Equal", 19, 21))
sketch2.addConstraint(Sketcher.Constraint("Equal", 23, 25))
sketch2.addConstraint(Sketcher.Constraint("Equal", 27, 29))
sketch2.addConstraint(Sketcher.Constraint("Equal", 31, 33))
sketch2.addConstraint(Sketcher.Constraint("Equal", 35, 37))
sketch2.addConstraint(Sketcher.Constraint("Equal", 39, 41))
sketch2.addConstraint(Sketcher.Constraint("Equal", 43, 45))
sketch2.addConstraint(Sketcher.Constraint("Equal", 47, 49))
sketch2.addConstraint(Sketcher.Constraint("Equal", 51, 53))
sketch2.addConstraint(Sketcher.Constraint("Equal", 55, 57))
sketch2.addConstraint(Sketcher.Constraint("Equal", 59, 61))
sketch2.addConstraint(Sketcher.Constraint("Equal", 63, 65))
sketch2.addConstraint(Sketcher.Constraint("Equal", 67, 69))
sketch2.addConstraint(Sketcher.Constraint("PointOnObject", 1, 3, -1))
sketch2.addConstraint(Sketcher.Constraint("PointOnObject", 5, 3, -1))
sketch2.addConstraint(Sketcher.Constraint("PointOnObject", 9, 3, -1))
sketch2.addConstraint(Sketcher.Constraint("PointOnObject", 13, 3, -1))
sketch2.addConstraint(Sketcher.Constraint("PointOnObject", 17, 3, -1))
sketch2.addConstraint(Sketcher.Constraint("PointOnObject", 21, 3, -1))
sketch2.addConstraint(Sketcher.Constraint("PointOnObject", 25, 3, -1))
sketch2.addConstraint(Sketcher.Constraint("PointOnObject", 29, 3, -1))
sketch2.addConstraint(Sketcher.Constraint("PointOnObject", 33, 3, -1))
sketch2.addConstraint(Sketcher.Constraint("PointOnObject", 37, 3, -1))
sketch2.addConstraint(Sketcher.Constraint("PointOnObject", 41, 3, -1))
sketch2.addConstraint(Sketcher.Constraint("PointOnObject", 45, 3, -1))
sketch2.addConstraint(Sketcher.Constraint("PointOnObject", 49, 3, -1))
sketch2.addConstraint(Sketcher.Constraint("PointOnObject", 53, 3, -1))
sketch2.addConstraint(Sketcher.Constraint("PointOnObject", 57, 3, -1))
sketch2.addConstraint(Sketcher.Constraint("PointOnObject", 61, 3, -1))
sketch2.addConstraint(Sketcher.Constraint("PointOnObject", 65, 3, -1))
sketch2.addConstraint(Sketcher.Constraint("PointOnObject", 69, 3, -1))
sketch2.addConstraint(Sketcher.Constraint("Equal", 2, 4))
sketch2.addConstraint(Sketcher.Constraint("Equal", 6, 8))
sketch2.addConstraint(Sketcher.Constraint("Equal", 10, 12))
sketch2.addConstraint(Sketcher.Constraint("Equal", 14, 16))
sketch2.addConstraint(Sketcher.Constraint("Equal", 18, 20))
sketch2.addConstraint(Sketcher.Constraint("Equal", 22, 24))
sketch2.addConstraint(Sketcher.Constraint("Equal", 26, 28))
sketch2.addConstraint(Sketcher.Constraint("Equal", 30, 32))
sketch2.addConstraint(Sketcher.Constraint("Equal", 34, 36))
sketch2.addConstraint(Sketcher.Constraint("Equal", 38, 40))
sketch2.addConstraint(Sketcher.Constraint("Equal", 42, 44))
sketch2.addConstraint(Sketcher.Constraint("Equal", 46, 48))
sketch2.addConstraint(Sketcher.Constraint("Equal", 50, 52))
sketch2.addConstraint(Sketcher.Constraint("Equal", 54, 56))
sketch2.addConstraint(Sketcher.Constraint("Equal", 58, 60))
sketch2.addConstraint(Sketcher.Constraint("Equal", 62, 64))
sketch2.addConstraint(Sketcher.Constraint("Equal", 66, 68))
sketch2.addConstraint(Sketcher.Constraint("Radius", 1, Q("2 mm")))
sketch2.addConstraint(Sketcher.Constraint("DistanceX", 0, 2, 0, 1, Q("7.5 mm")))
sketch2.addConstraint(Sketcher.Constraint("DistanceX", -1, 1, 1, 3, Q("10 mm")))
sketch2.addConstraint(Sketcher.Constraint("DistanceX", -1, 1, 5, 3, Q("30 mm")))
sketch2.addConstraint(Sketcher.Constraint("DistanceX", -1, 1, 9, 3, Q("54 mm")))
sketch2.addConstraint(Sketcher.Constraint("DistanceX", -1, 1, 13, 3, Q("74 mm")))
sketch2.addConstraint(Sketcher.Constraint("DistanceX", -1, 1, 17, 3, Q("98 mm")))
sketch2.addConstraint(Sketcher.Constraint("DistanceX", -1, 1, 21, 3, Q("118 mm")))
sketch2.addConstraint(Sketcher.Constraint("DistanceX", -1, 1, 25, 3, Q("142 mm")))
sketch2.addConstraint(Sketcher.Constraint("DistanceX", -1, 1, 29, 3, Q("162 mm")))
sketch2.addConstraint(Sketcher.Constraint("DistanceX", -1, 1, 33, 3, Q("186 mm")))
sketch2.addConstraint(Sketcher.Constraint("DistanceX", -1, 1, 37, 3, Q("206 mm")))
sketch2.addConstraint(Sketcher.Constraint("DistanceX", -1, 1, 41, 3, Q("230 mm")))
sketch2.addConstraint(Sketcher.Constraint("DistanceX", -1, 1, 45, 3, Q("250 mm")))
sketch2.addConstraint(Sketcher.Constraint("DistanceX", -1, 1, 49, 3, Q("274 mm")))
sketch2.addConstraint(Sketcher.Constraint("DistanceX", -1, 1, 53, 3, Q("294 mm")))
sketch2.addConstraint(Sketcher.Constraint("DistanceX", -1, 1, 57, 3, Q("318 mm")))
sketch2.addConstraint(Sketcher.Constraint("DistanceX", -1, 1, 61, 3, Q("338 mm")))
sketch2.addConstraint(Sketcher.Constraint("DistanceX", -1, 1, 65, 3, Q("362 mm")))
sketch2.addConstraint(Sketcher.Constraint("DistanceX", -1, 1, 69, 3, Q("382 mm")))
pocket1 = body.newObject("PartDesign::Pocket", "Pocket")
pocket1.Profile = sketch2
pocket1.Length = 10
pocket1.Reversed = True

doc.recompute()
